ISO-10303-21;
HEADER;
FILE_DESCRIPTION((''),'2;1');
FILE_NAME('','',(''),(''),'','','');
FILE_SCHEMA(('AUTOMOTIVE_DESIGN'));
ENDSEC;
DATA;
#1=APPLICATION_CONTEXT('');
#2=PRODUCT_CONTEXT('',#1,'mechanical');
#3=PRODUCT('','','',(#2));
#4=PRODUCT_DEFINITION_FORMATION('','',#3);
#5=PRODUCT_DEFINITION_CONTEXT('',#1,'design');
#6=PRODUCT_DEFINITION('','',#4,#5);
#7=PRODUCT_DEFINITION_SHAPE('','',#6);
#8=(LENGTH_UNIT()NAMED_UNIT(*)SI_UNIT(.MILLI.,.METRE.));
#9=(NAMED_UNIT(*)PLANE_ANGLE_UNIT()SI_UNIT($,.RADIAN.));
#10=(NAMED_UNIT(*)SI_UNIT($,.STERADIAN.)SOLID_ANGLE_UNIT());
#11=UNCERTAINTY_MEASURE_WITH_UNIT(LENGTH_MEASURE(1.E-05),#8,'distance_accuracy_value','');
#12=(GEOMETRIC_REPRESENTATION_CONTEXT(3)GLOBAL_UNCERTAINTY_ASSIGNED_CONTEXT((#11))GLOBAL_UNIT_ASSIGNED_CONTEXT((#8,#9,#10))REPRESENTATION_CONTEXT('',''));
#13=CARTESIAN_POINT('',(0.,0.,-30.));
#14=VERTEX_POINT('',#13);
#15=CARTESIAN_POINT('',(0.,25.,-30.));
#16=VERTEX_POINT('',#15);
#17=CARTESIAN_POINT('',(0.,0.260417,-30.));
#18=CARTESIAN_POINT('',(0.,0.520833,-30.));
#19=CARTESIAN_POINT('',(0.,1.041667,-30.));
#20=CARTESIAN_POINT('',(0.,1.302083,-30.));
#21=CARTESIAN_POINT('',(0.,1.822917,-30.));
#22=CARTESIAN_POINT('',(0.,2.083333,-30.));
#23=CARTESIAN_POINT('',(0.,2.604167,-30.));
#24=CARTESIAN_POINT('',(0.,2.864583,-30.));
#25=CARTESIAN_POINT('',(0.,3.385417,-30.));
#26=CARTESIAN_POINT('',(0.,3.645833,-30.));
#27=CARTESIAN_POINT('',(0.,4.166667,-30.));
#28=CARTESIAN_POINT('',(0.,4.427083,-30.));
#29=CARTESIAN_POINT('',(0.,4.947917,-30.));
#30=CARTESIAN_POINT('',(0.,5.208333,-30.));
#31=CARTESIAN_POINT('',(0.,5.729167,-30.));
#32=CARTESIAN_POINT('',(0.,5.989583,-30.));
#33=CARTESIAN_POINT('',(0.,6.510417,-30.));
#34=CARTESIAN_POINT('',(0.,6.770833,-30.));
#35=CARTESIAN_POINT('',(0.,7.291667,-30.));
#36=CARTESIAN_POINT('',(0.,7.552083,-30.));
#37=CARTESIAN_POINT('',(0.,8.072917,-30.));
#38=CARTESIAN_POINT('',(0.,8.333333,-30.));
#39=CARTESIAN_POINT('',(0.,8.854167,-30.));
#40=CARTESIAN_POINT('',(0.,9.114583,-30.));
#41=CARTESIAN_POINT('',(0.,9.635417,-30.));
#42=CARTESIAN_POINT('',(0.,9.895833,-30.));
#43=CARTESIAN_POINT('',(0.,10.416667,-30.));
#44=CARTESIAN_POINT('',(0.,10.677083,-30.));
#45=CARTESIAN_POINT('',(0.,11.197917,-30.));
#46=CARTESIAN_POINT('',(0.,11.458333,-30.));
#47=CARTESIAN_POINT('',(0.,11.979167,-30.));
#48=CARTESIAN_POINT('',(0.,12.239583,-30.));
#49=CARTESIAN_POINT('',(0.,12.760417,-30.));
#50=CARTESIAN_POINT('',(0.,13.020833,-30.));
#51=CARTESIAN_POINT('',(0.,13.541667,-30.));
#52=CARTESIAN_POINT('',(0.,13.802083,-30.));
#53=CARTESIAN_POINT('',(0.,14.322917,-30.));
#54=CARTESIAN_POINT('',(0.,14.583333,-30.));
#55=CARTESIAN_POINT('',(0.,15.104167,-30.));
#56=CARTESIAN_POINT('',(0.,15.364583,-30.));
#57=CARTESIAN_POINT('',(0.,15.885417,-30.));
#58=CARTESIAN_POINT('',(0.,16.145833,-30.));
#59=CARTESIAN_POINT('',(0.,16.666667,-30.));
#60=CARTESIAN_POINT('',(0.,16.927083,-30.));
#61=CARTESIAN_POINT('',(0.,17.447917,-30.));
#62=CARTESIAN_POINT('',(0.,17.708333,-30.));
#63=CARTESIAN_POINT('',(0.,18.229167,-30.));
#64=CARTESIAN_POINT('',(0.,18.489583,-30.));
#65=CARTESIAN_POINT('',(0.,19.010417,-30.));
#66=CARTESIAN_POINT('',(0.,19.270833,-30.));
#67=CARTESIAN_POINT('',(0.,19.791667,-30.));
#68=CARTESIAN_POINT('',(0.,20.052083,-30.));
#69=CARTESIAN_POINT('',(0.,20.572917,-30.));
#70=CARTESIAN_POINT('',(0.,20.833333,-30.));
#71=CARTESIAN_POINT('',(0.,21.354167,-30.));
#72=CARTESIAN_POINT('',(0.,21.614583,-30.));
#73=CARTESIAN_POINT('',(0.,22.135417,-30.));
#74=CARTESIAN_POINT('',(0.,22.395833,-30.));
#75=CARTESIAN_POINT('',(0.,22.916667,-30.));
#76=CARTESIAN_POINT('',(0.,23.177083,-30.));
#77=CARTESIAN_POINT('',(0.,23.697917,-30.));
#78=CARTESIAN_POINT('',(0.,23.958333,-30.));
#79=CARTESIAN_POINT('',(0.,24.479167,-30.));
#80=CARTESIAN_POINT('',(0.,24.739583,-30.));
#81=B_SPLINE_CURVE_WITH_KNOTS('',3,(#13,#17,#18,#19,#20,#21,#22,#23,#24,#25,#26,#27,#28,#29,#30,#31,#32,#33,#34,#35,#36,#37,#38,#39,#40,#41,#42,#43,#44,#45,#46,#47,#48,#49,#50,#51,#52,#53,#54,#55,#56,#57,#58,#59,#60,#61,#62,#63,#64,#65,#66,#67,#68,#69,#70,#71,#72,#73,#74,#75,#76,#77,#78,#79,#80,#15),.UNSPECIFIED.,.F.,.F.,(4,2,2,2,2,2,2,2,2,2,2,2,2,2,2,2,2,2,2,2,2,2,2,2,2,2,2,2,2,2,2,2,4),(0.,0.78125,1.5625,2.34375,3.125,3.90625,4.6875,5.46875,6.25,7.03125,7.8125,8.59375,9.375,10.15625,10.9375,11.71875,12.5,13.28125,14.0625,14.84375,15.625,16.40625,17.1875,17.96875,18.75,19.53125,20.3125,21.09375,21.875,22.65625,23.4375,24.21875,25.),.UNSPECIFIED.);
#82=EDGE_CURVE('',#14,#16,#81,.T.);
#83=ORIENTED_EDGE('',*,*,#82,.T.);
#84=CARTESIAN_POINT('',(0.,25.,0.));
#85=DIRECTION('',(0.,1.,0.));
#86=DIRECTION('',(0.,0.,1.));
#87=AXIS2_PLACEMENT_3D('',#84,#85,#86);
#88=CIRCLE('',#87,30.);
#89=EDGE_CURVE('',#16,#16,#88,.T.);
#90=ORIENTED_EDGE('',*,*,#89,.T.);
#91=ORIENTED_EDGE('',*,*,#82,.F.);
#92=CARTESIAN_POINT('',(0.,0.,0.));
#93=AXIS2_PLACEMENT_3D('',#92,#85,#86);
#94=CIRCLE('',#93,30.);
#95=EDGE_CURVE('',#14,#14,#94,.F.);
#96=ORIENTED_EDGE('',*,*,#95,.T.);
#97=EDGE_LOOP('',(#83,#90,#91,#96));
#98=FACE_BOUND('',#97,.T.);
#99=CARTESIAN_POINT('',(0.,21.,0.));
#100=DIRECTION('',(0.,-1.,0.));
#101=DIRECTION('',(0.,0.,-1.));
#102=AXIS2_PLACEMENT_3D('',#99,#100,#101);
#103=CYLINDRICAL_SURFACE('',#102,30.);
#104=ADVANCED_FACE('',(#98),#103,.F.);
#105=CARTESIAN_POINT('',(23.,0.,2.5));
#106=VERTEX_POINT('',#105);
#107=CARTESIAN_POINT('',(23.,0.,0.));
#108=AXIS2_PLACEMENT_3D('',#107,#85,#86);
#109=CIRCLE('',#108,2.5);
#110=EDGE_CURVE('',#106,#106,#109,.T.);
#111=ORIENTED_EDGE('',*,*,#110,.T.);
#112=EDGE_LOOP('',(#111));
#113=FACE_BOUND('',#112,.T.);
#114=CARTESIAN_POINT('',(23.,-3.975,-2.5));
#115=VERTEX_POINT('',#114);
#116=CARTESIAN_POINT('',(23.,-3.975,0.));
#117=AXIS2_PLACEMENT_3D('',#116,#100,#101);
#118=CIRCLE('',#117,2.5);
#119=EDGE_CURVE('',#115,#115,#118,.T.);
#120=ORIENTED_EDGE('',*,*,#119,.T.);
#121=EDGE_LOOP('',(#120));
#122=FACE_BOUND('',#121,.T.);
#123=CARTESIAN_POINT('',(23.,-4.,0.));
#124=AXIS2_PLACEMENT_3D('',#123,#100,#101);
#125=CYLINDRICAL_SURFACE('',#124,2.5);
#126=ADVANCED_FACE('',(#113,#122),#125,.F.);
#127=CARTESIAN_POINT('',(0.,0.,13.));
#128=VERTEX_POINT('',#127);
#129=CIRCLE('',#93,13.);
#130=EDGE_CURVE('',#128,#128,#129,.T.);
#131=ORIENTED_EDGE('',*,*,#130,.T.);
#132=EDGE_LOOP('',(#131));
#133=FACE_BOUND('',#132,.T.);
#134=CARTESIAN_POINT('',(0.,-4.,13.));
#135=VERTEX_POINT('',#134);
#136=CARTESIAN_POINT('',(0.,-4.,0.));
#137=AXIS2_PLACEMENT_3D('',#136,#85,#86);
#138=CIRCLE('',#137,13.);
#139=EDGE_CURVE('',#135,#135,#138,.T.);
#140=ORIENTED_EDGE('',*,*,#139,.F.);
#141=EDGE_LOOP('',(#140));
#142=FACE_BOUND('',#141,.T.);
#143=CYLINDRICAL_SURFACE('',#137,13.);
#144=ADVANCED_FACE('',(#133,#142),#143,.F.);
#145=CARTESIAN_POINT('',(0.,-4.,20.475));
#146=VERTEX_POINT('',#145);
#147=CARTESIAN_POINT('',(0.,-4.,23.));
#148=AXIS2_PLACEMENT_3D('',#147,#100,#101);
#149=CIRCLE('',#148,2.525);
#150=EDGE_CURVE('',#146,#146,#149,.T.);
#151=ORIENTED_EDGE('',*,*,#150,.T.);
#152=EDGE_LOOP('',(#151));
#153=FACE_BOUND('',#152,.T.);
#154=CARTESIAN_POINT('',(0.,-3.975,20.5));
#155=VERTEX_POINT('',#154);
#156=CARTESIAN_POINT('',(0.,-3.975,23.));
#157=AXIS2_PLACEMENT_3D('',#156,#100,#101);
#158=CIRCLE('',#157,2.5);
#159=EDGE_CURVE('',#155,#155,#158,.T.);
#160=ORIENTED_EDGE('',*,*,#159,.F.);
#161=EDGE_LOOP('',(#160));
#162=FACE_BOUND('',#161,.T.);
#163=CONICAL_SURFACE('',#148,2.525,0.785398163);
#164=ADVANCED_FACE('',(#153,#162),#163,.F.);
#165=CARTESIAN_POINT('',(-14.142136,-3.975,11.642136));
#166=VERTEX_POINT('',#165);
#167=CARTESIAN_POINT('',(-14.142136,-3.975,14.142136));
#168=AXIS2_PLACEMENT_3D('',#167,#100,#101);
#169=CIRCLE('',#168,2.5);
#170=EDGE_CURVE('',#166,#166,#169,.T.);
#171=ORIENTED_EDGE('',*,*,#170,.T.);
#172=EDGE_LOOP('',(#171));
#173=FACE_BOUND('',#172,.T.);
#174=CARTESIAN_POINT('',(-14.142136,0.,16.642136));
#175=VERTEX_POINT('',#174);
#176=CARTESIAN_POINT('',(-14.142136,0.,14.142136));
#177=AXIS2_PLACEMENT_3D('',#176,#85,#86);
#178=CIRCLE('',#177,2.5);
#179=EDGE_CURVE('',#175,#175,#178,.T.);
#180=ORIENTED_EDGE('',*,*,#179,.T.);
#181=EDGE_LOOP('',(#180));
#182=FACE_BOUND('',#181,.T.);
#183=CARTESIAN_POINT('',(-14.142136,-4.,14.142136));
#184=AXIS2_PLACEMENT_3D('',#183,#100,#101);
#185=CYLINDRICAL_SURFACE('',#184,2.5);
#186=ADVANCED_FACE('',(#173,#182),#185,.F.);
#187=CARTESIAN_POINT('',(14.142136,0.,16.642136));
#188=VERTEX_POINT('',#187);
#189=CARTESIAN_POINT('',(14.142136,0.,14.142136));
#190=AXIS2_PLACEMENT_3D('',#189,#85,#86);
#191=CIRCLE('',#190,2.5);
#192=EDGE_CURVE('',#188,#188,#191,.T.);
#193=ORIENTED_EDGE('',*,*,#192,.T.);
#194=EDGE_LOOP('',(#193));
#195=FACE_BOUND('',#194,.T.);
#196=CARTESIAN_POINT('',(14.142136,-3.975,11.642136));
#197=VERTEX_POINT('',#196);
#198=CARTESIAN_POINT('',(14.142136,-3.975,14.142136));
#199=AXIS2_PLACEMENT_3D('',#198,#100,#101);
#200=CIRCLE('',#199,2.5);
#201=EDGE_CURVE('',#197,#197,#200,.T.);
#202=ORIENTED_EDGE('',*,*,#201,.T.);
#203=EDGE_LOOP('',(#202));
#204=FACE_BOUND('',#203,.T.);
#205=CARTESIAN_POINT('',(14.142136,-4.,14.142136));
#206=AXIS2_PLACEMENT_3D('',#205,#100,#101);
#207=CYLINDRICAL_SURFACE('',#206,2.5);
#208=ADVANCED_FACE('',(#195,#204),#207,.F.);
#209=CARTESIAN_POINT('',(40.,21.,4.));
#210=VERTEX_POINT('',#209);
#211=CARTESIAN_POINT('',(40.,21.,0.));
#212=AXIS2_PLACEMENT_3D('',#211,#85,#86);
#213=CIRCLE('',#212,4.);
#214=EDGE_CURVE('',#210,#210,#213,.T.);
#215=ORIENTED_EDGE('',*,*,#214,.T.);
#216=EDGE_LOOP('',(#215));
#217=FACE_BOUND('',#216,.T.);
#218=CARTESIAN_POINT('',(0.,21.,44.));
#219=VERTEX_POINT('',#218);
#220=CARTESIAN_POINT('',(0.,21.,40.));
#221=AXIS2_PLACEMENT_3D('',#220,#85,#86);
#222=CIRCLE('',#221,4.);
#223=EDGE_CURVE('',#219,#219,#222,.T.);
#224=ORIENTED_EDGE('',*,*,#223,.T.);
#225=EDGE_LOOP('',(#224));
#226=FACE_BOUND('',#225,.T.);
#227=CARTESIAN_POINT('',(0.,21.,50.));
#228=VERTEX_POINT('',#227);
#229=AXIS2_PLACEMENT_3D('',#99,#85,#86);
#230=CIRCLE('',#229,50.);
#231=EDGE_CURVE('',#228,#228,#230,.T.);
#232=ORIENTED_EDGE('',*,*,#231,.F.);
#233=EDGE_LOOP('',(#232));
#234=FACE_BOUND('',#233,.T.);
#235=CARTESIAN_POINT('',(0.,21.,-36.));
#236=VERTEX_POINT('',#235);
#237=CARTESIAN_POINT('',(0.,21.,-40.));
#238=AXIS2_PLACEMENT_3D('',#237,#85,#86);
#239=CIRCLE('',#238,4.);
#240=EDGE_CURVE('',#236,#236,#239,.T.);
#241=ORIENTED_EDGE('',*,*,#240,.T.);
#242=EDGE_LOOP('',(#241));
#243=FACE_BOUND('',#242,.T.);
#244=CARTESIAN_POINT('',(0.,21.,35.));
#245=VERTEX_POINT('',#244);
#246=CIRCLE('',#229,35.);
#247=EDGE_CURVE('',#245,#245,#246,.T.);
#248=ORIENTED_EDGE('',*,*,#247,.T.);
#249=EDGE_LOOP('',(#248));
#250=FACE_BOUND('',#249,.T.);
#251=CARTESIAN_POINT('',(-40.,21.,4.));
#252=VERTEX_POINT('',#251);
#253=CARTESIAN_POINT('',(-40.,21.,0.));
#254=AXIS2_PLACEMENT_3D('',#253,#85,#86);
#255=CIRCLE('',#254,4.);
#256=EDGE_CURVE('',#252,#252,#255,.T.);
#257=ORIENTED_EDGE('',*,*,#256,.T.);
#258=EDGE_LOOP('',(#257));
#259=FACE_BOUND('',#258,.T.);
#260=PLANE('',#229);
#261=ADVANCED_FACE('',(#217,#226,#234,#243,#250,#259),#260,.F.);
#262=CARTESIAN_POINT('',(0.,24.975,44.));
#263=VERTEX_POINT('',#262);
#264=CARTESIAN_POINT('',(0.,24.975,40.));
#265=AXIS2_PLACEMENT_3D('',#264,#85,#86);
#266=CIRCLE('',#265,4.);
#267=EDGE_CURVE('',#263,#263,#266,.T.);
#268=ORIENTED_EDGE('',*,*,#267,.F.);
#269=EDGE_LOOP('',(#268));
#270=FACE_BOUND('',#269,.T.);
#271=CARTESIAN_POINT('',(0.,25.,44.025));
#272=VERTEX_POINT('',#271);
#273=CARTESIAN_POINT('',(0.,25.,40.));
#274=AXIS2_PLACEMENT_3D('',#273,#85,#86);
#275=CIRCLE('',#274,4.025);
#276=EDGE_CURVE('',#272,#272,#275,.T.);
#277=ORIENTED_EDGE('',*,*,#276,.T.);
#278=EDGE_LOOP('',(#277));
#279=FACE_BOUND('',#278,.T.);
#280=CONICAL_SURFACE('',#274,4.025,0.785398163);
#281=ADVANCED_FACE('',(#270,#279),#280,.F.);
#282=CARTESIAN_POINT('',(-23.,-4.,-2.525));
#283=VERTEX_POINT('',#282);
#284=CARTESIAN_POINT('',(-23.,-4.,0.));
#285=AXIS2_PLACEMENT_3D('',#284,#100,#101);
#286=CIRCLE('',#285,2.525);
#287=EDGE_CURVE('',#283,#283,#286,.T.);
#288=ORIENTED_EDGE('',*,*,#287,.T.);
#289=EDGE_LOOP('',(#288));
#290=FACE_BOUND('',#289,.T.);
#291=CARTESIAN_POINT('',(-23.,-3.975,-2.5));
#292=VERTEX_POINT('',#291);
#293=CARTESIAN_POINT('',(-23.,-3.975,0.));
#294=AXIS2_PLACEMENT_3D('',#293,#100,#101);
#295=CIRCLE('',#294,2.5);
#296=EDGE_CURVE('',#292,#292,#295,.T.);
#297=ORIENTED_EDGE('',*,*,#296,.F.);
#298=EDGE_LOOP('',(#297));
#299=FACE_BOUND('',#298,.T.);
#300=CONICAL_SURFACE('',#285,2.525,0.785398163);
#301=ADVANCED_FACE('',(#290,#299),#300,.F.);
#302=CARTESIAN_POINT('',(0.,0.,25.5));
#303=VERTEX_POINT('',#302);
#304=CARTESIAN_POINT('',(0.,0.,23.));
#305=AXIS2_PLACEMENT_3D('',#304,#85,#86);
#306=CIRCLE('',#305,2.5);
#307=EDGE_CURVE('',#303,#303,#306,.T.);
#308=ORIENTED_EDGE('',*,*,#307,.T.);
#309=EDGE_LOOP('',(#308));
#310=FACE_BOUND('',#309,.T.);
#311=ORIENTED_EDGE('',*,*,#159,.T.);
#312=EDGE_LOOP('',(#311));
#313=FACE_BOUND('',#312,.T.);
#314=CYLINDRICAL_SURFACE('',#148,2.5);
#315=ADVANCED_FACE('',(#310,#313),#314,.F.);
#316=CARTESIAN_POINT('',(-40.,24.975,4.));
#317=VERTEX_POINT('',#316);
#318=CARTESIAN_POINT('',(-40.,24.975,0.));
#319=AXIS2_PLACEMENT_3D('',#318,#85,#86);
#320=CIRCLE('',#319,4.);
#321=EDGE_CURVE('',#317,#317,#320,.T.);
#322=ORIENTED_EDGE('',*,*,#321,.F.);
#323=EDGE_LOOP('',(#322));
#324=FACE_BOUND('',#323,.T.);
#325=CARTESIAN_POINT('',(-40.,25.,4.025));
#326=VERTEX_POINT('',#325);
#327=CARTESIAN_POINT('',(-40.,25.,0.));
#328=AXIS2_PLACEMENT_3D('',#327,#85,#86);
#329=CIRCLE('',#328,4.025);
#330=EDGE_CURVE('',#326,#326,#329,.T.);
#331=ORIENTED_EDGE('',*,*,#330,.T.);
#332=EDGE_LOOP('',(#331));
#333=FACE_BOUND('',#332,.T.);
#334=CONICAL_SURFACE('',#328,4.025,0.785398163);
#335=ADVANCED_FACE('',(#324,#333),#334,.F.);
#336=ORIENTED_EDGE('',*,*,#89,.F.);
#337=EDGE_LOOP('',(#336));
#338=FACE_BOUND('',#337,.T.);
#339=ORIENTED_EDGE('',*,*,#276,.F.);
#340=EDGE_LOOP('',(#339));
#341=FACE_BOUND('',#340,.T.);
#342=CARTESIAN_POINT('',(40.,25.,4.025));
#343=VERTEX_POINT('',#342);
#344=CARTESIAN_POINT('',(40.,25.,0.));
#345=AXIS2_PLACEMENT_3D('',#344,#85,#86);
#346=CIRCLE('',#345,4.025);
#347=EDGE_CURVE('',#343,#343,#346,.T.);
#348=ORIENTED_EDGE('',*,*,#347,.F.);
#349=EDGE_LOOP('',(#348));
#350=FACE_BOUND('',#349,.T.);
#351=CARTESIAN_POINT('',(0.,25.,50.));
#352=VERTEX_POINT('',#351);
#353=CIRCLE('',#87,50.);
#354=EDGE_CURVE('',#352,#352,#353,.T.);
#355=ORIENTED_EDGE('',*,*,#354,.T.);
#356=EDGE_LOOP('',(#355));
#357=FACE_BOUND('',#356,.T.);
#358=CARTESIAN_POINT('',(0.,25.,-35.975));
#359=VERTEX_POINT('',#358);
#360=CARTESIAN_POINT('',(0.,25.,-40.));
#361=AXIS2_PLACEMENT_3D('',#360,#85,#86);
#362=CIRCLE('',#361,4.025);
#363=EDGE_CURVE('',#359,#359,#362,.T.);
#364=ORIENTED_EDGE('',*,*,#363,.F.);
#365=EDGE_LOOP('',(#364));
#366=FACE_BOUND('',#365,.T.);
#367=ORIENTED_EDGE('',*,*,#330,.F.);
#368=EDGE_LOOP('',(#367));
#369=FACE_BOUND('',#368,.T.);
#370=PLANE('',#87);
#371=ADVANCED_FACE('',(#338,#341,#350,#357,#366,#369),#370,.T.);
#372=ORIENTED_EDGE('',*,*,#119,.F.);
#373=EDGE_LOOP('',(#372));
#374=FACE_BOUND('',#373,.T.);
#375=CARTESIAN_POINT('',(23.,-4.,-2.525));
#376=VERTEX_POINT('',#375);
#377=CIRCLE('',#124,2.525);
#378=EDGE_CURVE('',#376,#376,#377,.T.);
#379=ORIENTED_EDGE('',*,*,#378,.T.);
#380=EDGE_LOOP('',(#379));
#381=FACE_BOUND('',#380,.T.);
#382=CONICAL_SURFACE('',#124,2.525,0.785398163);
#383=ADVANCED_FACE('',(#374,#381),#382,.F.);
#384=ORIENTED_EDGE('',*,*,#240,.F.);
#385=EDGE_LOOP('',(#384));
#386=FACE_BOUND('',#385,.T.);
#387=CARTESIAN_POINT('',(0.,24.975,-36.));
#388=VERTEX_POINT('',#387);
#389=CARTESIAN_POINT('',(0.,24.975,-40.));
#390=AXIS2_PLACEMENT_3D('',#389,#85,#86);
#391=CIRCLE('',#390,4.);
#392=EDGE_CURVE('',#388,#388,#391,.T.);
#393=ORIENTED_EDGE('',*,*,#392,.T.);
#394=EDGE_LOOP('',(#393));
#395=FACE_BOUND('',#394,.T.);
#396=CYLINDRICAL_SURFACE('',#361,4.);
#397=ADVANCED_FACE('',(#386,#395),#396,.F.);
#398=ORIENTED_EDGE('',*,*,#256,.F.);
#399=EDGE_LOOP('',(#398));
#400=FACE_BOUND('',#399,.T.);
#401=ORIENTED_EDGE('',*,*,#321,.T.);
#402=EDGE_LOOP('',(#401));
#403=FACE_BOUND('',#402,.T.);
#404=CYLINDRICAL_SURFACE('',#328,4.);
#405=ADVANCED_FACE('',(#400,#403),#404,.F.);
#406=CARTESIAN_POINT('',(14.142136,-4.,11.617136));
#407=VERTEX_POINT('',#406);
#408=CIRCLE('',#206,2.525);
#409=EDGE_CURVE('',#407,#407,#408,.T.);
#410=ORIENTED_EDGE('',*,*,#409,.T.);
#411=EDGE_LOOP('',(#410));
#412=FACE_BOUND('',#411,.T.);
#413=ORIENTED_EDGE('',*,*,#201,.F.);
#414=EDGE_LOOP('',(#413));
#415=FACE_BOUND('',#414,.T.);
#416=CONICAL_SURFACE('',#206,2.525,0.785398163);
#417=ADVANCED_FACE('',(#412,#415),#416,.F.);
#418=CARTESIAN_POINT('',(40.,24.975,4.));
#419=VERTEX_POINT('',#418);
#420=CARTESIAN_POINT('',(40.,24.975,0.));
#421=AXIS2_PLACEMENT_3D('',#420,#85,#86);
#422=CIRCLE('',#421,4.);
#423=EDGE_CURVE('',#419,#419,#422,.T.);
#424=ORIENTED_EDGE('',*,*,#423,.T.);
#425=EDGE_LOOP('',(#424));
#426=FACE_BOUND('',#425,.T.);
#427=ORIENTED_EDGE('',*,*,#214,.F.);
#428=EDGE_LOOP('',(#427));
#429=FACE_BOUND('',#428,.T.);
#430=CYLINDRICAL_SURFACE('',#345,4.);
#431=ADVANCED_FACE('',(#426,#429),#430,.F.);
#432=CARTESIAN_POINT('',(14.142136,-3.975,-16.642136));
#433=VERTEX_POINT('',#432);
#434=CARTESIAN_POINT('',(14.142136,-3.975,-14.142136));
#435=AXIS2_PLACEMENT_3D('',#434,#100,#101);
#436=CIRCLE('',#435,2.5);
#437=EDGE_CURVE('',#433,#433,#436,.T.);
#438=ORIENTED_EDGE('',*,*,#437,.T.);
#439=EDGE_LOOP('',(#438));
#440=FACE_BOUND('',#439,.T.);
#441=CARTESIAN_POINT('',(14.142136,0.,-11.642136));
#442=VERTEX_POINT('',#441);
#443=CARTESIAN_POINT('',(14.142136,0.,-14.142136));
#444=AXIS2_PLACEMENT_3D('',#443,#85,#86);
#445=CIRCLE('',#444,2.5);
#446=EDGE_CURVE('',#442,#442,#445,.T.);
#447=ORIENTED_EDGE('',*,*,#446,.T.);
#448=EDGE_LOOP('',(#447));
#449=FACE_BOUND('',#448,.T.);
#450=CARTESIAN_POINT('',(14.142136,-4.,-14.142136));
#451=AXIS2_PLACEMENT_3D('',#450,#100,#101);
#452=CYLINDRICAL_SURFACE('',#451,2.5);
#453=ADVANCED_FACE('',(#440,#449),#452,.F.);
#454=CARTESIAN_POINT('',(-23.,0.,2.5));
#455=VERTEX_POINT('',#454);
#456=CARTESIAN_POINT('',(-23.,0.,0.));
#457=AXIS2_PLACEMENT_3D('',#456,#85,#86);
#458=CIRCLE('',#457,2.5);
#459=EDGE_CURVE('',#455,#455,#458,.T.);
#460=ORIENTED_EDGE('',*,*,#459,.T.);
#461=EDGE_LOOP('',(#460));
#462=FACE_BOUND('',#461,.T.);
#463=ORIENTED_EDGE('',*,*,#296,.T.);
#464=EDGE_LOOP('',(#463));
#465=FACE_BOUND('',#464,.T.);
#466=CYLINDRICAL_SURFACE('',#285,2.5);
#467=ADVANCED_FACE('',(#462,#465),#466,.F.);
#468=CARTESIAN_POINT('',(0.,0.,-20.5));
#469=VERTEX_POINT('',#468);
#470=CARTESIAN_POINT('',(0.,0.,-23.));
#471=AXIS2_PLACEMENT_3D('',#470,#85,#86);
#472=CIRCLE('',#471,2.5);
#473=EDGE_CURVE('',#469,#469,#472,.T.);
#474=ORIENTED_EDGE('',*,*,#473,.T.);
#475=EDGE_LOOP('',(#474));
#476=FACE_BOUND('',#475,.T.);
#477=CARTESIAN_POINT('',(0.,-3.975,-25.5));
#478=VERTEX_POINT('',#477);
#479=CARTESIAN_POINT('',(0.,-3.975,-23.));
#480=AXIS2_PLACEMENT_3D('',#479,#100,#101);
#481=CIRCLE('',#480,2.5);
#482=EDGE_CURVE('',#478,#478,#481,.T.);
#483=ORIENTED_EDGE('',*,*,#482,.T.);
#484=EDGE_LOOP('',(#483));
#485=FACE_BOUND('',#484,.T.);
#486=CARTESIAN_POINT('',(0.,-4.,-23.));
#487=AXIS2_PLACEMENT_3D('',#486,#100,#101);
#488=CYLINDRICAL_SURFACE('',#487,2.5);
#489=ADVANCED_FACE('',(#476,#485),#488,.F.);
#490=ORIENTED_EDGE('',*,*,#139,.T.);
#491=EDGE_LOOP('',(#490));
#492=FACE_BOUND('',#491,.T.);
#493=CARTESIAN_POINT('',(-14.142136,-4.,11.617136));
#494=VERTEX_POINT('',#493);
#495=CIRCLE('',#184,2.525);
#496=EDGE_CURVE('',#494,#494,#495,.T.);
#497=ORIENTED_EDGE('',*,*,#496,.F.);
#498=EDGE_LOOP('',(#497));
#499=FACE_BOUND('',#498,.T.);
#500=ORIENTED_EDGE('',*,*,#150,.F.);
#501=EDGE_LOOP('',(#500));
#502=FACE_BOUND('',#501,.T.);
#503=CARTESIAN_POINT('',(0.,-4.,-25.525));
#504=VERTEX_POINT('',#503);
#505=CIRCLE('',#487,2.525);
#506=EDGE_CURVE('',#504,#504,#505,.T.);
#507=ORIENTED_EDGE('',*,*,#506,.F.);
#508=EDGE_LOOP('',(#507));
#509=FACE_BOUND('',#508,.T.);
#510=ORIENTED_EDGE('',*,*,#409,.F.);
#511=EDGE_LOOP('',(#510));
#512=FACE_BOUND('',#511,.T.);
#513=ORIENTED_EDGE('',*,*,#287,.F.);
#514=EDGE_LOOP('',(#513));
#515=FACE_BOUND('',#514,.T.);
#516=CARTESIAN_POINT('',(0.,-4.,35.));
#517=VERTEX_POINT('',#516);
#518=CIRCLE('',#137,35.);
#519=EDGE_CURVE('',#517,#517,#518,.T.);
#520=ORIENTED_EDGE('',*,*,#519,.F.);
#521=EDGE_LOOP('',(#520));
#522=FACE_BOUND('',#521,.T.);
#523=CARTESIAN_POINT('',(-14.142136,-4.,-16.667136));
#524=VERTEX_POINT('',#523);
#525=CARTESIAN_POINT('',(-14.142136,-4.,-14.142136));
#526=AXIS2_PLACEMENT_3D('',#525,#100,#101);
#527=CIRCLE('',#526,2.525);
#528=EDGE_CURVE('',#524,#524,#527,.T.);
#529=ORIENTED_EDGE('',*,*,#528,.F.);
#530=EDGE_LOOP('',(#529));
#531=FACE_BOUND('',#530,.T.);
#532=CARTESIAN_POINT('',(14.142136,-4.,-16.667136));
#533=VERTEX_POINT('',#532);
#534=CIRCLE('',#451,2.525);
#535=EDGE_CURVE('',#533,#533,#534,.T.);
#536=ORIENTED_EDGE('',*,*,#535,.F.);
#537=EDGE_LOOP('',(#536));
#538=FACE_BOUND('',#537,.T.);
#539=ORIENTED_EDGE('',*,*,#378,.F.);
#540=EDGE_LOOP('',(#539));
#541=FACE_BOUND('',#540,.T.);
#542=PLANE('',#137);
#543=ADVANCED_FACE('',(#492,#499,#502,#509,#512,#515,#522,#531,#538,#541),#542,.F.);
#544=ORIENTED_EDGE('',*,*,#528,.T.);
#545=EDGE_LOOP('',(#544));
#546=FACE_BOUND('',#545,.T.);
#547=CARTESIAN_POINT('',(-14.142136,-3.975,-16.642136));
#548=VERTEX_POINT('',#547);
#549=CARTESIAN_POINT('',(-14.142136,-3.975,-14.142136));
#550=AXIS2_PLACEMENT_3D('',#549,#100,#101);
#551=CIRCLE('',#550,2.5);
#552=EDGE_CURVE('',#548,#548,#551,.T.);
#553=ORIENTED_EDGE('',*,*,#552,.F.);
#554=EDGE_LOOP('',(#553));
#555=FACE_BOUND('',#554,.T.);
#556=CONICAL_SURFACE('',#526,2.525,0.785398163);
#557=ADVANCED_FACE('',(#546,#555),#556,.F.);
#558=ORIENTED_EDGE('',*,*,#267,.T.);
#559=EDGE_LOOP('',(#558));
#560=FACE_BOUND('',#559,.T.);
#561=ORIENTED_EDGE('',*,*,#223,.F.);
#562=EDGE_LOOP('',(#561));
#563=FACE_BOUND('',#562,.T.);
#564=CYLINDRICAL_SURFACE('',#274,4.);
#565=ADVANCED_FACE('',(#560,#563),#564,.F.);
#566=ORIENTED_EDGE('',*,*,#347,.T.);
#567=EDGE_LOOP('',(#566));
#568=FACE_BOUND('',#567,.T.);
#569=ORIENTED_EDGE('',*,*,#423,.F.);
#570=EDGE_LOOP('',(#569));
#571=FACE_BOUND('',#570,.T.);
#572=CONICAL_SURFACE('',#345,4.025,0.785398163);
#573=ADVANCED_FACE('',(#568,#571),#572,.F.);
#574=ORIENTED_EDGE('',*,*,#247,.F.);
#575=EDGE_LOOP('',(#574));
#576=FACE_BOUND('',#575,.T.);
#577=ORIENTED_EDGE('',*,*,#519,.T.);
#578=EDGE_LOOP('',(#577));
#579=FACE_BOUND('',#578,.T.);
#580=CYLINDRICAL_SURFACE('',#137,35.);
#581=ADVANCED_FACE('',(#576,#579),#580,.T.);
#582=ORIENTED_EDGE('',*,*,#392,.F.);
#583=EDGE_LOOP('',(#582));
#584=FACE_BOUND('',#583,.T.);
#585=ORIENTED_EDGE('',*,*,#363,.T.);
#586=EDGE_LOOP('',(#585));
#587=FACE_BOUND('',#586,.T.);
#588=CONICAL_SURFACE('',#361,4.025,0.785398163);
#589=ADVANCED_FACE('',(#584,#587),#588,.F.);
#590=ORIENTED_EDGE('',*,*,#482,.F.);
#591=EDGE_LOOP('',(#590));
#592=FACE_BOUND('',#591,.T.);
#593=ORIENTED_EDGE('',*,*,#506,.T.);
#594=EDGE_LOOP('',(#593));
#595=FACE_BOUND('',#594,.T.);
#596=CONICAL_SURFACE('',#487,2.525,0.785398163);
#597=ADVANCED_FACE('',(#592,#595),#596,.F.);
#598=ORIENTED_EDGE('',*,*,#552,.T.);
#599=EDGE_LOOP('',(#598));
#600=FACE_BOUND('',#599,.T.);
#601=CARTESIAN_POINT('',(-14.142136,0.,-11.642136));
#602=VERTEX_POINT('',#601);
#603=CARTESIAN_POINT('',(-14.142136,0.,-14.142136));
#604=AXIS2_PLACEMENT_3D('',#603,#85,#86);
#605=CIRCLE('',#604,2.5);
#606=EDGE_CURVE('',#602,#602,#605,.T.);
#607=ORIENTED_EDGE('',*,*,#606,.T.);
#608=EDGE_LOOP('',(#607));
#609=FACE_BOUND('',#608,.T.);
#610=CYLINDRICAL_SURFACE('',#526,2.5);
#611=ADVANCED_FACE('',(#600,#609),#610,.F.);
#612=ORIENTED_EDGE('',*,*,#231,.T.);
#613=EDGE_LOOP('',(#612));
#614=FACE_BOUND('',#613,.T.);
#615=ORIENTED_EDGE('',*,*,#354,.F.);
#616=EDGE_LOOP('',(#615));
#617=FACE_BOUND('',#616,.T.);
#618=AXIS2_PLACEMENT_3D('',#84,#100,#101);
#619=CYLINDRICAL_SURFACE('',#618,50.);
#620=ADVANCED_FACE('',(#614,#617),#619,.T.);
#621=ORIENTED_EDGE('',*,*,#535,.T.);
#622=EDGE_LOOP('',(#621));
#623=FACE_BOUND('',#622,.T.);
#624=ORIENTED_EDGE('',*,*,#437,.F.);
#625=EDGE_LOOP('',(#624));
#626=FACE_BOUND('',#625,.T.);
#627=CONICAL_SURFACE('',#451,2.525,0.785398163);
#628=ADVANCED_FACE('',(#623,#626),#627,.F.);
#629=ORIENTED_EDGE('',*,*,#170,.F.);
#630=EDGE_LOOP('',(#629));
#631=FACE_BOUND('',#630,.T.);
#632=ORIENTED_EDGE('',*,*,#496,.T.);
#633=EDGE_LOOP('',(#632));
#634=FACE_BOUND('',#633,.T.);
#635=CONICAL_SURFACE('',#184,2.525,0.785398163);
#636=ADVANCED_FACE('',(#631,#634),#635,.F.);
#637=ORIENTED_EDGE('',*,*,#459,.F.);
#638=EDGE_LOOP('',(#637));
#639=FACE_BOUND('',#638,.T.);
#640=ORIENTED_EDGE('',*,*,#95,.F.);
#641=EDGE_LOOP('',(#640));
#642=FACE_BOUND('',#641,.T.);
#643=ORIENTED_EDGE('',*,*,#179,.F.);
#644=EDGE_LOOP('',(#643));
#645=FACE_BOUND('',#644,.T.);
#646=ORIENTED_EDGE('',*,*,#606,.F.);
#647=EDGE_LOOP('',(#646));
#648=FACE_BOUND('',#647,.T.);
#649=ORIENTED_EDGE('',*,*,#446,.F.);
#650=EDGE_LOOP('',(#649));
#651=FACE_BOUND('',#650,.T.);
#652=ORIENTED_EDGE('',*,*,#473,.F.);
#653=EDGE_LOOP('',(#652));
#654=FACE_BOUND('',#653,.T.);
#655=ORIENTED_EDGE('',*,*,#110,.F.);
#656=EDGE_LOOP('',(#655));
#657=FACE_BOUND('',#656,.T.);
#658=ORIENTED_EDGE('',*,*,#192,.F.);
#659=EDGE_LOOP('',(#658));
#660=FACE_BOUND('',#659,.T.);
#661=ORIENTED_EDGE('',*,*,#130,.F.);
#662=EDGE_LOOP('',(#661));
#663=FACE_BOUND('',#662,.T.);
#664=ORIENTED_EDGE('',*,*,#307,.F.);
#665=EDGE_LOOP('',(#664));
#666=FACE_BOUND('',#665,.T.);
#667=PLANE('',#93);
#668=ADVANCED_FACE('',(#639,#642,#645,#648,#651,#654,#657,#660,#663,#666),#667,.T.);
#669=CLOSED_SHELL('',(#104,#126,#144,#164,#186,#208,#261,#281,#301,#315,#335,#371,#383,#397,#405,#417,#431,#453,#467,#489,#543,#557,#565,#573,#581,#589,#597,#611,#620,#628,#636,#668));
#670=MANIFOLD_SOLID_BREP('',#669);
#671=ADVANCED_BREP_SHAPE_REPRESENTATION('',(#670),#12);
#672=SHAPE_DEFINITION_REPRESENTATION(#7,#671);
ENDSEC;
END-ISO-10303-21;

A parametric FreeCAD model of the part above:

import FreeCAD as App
import Part
import Sketcher
from FreeCAD import Vector
Q = App.Units.Quantity

doc = App.newDocument("Part")
body = doc.addObject("PartDesign::Body", "Body")

sketch1 = body.newObject("Sketcher::SketchObject", "Sketch")
sketch1.AttachmentSupport = (doc.getObject("XZ_Plane"), [""])
sketch1.MapMode = "FlatFace"
sketch1.addGeometry(Part.Circle(Vector(0, 0, 0), Vector(0, 0, 1), 35), False)
sketch1.addGeometry(Part.Circle(Vector(0, 0, 0), Vector(0, 0, 1), 13), False)
sketch1.addConstraint(Sketcher.Constraint("Coincident", 0, 3, -1, 1))
sketch1.addConstraint(Sketcher.Constraint("Coincident", 1, 3, -1, 1))
sketch1.addConstraint(Sketcher.Constraint("Diameter", 0, Q("70 mm")))
sketch1.addConstraint(Sketcher.Constraint("Diameter", 1, Q("26 mm")))
pad1 = body.newObject("PartDesign::Pad", "Pad")
pad1.Profile = sketch1
pad1.Length = 4

sketch2 = body.newObject("Sketcher::SketchObject", "Sketch001")
sketch2.AttachmentSupport = (doc.getObject("YZ_Plane"), [""])
sketch2.MapMode = "FlatFace"
sketch2.addGeometry(Part.LineSegment(Vector(17.502, 23, 0), Vector(-4, 23, 0)), False)
sketch2.addGeometry(Part.LineSegment(Vector(-4, 23, 0), Vector(-4, 20.475, 0)), False)
sketch2.addGeometry(Part.LineSegment(Vector(-4, 20.475, 0), Vector(-3.975, 20.5, 0)), False)
sketch2.addGeometry(Part.LineSegment(Vector(-3.975, 20.5, 0), Vector(16, 20.5, 0)), False)
sketch2.addGeometry(Part.LineSegment(Vector(16, 20.5, 0), Vector(17.502, 23, 0)), False)
sketch2.addGeometry(Part.LineSegment(Vector(-4, 23, 0), Vector(17.502, 23, 0)), True)
sketch2.addConstraint(Sketcher.Constraint("Coincident", 0, 2, 1, 1))
sketch2.addConstraint(Sketcher.Constraint("Coincident", 1, 2, 2, 1))
sketch2.addConstraint(Sketcher.Constraint("Coincident", 2, 2, 3, 1))
sketch2.addConstraint(Sketcher.Constraint("Coincident", 3, 2, 4, 1))
sketch2.addConstraint(Sketcher.Constraint("Coincident", 4, 2, 0, 1))
sketch2.addConstraint(Sketcher.Constraint("Horizontal", 0))
sketch2.addConstraint(Sketcher.Constraint("Vertical", 1))
sketch2.addConstraint(Sketcher.Constraint("Horizontal", 3))
sketch2.addConstraint(Sketcher.Constraint("Horizontal", 5))
sketch2.addConstraint(Sketcher.Constraint("Coincident", 5, 1, 0, 2))
sketch2.addConstraint(Sketcher.Constraint("Equal", 0, 5))
sketch2.addConstraint(Sketcher.Constraint("Angle", 2, Q("45 deg")))
sketch2.addConstraint(Sketcher.Constraint("Angle", 4, Q("59 deg")))
sketch2.addConstraint(Sketcher.Constraint("DistanceX", 0, 2, -1, 1, Q("4 mm")))
sketch2.addConstraint(Sketcher.Constraint("DistanceY", -1, 1, 0, 2, Q("23 mm")))
sketch2.addConstraint(Sketcher.Constraint("DistanceX", -1, 1, 3, 2, Q("16 mm")))
sketch2.addConstraint(Sketcher.Constraint("DistanceY", -1, 1, 2, 2, Q("20.5 mm")))
sketch2.addConstraint(Sketcher.Constraint("DistanceX", 3, 1, 3, 2, Q("19.975 mm")))
groove = body.newObject("PartDesign::Groove", "Groove")
groove.Profile = sketch2
groove.ReferenceAxis = (sketch2, ["Axis0"])
groove.Angle = 360
doc.recompute()

datumline = body.newObject("PartDesign::Line", "DatumLine")
datumline.Placement = App.Placement(Vector(0, 0, 0), App.Rotation(Vector(0, 0, 1), Vector(-0.707106781, 0, -0.707106781)))
linearpattern = body.newObject("PartDesign::LinearPattern", "LinearPattern")
linearpattern.Originals = [groove]
linearpattern.Direction = (datumline, [""])
linearpattern.Mode = "offset"
linearpattern.Offset = 32.526912
linearpattern.Occurrences = 2
body.Tip = linearpattern
doc.recompute()

mirrored = body.newObject("PartDesign::Mirrored", "Mirrored")
mirrored.Originals = [groove]
mirrored.MirrorPlane = (doc.getObject("YZ_Plane"), [""])
body.Tip = mirrored

sketch3 = body.newObject("Sketcher::SketchObject", "Sketch002")
sketch3.AttachmentSupport = (doc.getObject("YZ_Plane"), [""])
sketch3.MapMode = "FlatFace"
sketch3.AttachmentOffset = App.Placement(Vector(0, 0, 23), App.Rotation())
sketch3.addGeometry(Part.LineSegment(Vector(-4, 0, 0), Vector(17.502, 0, 0)), False)
sketch3.addGeometry(Part.LineSegment(Vector(17.502, 0, 0), Vector(16, -2.5, 0)), False)
sketch3.addGeometry(Part.LineSegment(Vector(16, -2.5, 0), Vector(-3.975, -2.5, 0)), False)
sketch3.addGeometry(Part.LineSegment(Vector(-3.975, -2.5, 0), Vector(-4, -2.525, 0)), False)
sketch3.addGeometry(Part.LineSegment(Vector(-4, -2.525, 0), Vector(-4, 0, 0)), False)
sketch3.addConstraint(Sketcher.Constraint("Coincident", 0, 2, 1, 1))
sketch3.addConstraint(Sketcher.Constraint("Coincident", 1, 2, 2, 1))
sketch3.addConstraint(Sketcher.Constraint("Coincident", 2, 2, 3, 1))
sketch3.addConstraint(Sketcher.Constraint("Coincident", 3, 2, 4, 1))
sketch3.addConstraint(Sketcher.Constraint("Coincident", 4, 2, 0, 1))
sketch3.addConstraint(Sketcher.Constraint("Horizontal", 0))
sketch3.addConstraint(Sketcher.Constraint("Horizontal", 2))
sketch3.addConstraint(Sketcher.Constraint("Vertical", 4))
sketch3.addConstraint(Sketcher.Constraint("PointOnObject", 0, 2, -1))
sketch3.addConstraint(Sketcher.Constraint("Angle", 1, Q("-121 deg")))
sketch3.addConstraint(Sketcher.Constraint("Angle", 3, Q("-135 deg")))
sketch3.addConstraint(Sketcher.Constraint("DistanceX", -1, 1, 1, 2, Q("16 mm")))
sketch3.addConstraint(Sketcher.Constraint("DistanceX", 3, 2, -1, 1, Q("4 mm")))
sketch3.addConstraint(Sketcher.Constraint("DistanceY", 1, 2, -1, 1, Q("2.5 mm")))
sketch3.addConstraint(Sketcher.Constraint("DistanceX", 2, 2, 2, 1, Q("19.975 mm")))
groove2 = body.newObject("PartDesign::Groove", "Groove001")
groove2.Profile = sketch3
groove2.ReferenceAxis = (sketch3, ["H_Axis"])
groove2.Angle = 360
doc.recompute()

mirrored2 = body.newObject("PartDesign::Mirrored", "Mirrored001")
mirrored2.Originals = [groove]
mirrored2.MirrorPlane = (doc.getObject("XY_Plane"), [""])
body.Tip = mirrored2

sketch4 = body.newObject("Sketcher::SketchObject", "Sketch003")
sketch4.AttachmentSupport = (doc.getObject("YZ_Plane"), [""])
sketch4.MapMode = "FlatFace"
sketch4.AttachmentOffset = App.Placement(Vector(0, 0, -23), App.Rotation())
sketch4.addGeometry(Part.LineSegment(Vector(-4, 0, 0), Vector(17.502, 0, 0)), False)
sketch4.addGeometry(Part.LineSegment(Vector(17.502, 0, 0), Vector(16, 2.5, 0)), False)
sketch4.addGeometry(Part.LineSegment(Vector(16, 2.5, 0), Vector(-3.975, 2.5, 0)), False)
sketch4.addGeometry(Part.LineSegment(Vector(-3.975, 2.5, 0), Vector(-4, 2.525, 0)), False)
sketch4.addGeometry(Part.LineSegment(Vector(-4, 2.525, 0), Vector(-4, 0, 0)), False)
sketch4.addConstraint(Sketcher.Constraint("Coincident", 0, 2, 1, 1))
sketch4.addConstraint(Sketcher.Constraint("Coincident", 1, 2, 2, 1))
sketch4.addConstraint(Sketcher.Constraint("Coincident", 2, 2, 3, 1))
sketch4.addConstraint(Sketcher.Constraint("Coincident", 3, 2, 4, 1))
sketch4.addConstraint(Sketcher.Constraint("Coincident", 4, 2, 0, 1))
sketch4.addConstraint(Sketcher.Constraint("Horizontal", 0))
sketch4.addConstraint(Sketcher.Constraint("Horizontal", 2))
sketch4.addConstraint(Sketcher.Constraint("Vertical", 4))
sketch4.addConstraint(Sketcher.Constraint("PointOnObject", 0, 2, -1))
sketch4.addConstraint(Sketcher.Constraint("Angle", 1, Q("121 deg")))
sketch4.addConstraint(Sketcher.Constraint("Angle", 3, Q("135 deg")))
sketch4.addConstraint(Sketcher.Constraint("DistanceX", -1, 1, 1, 2, Q("16 mm")))
sketch4.addConstraint(Sketcher.Constraint("DistanceX", 3, 2, -1, 1, Q("4 mm")))
sketch4.addConstraint(Sketcher.Constraint("DistanceY", -1, 1, 1, 2, Q("2.5 mm")))
sketch4.addConstraint(Sketcher.Constraint("DistanceX", 2, 2, 2, 1, Q("19.975 mm")))
groove3 = body.newObject("PartDesign::Groove", "Groove002")
groove3.Profile = sketch4
groove3.ReferenceAxis = (sketch4, ["H_Axis"])
groove3.Angle = 360

sketch5 = body.newObject("Sketcher::SketchObject", "Sketch004")
sketch5.AttachmentSupport = (doc.getObject("YZ_Plane"), [""])
sketch5.MapMode = "FlatFace"
sketch5.AttachmentOffset = App.Placement(Vector(0, 0, -14.142136), App.Rotation())
sketch5.addGeometry(Part.LineSegment(Vector(17.502, 14.142, 0), Vector(-4, 14.142, 0)), False)
sketch5.addGeometry(Part.LineSegment(Vector(-4, 14.142, 0), Vector(-4, 11.617, 0)), False)
sketch5.addGeometry(Part.LineSegment(Vector(-4, 11.617, 0), Vector(-3.975, 11.642, 0)), False)
sketch5.addGeometry(Part.LineSegment(Vector(-3.975, 11.642, 0), Vector(16, 11.642, 0)), False)
sketch5.addGeometry(Part.LineSegment(Vector(16, 11.642, 0), Vector(17.502, 14.142, 0)), False)
sketch5.addGeometry(Part.LineSegment(Vector(-4, 14.142, 0), Vector(17.502, 14.142, 0)), True)
sketch5.addConstraint(Sketcher.Constraint("Coincident", 0, 2, 1, 1))
sketch5.addConstraint(Sketcher.Constraint("Coincident", 1, 2, 2, 1))
sketch5.addConstraint(Sketcher.Constraint("Coincident", 2, 2, 3, 1))
sketch5.addConstraint(Sketcher.Constraint("Coincident", 3, 2, 4, 1))
sketch5.addConstraint(Sketcher.Constraint("Coincident", 4, 2, 0, 1))
sketch5.addConstraint(Sketcher.Constraint("Horizontal", 0))
sketch5.addConstraint(Sketcher.Constraint("Vertical", 1))
sketch5.addConstraint(Sketcher.Constraint("Horizontal", 3))
sketch5.addConstraint(Sketcher.Constraint("Horizontal", 5))
sketch5.addConstraint(Sketcher.Constraint("Coincident", 5, 1, 0, 2))
sketch5.addConstraint(Sketcher.Constraint("Equal", 0, 5))
sketch5.addConstraint(Sketcher.Constraint("Angle", 2, Q("45 deg")))
sketch5.addConstraint(Sketcher.Constraint("Angle", 4, Q("59 deg")))
sketch5.addConstraint(Sketcher.Constraint("DistanceX", 0, 2, -1, 1, Q("4 mm")))
sketch5.addConstraint(Sketcher.Constraint("DistanceX", -1, 1, 3, 2, Q("16 mm")))
sketch5.addConstraint(Sketcher.Constraint("DistanceY", 2, 2, 0, 2, Q("2.5 mm")))
sketch5.addConstraint(Sketcher.Constraint("DistanceX", 3, 1, 3, 2, Q("19.975 mm")))
sketch5.addConstraint(Sketcher.Constraint("DistanceY", -1, 1, 0, 2, Q("14.142136 mm")))
groove4 = body.newObject("PartDesign::Groove", "Groove003")
groove4.Profile = sketch5
groove4.ReferenceAxis = (sketch5, ["Axis0"])
groove4.Angle = 360
doc.recompute()

linearpattern2 = body.newObject("PartDesign::LinearPattern", "LinearPattern001")
linearpattern2.Originals = [groove4]
linearpattern2.Direction = (doc.getObject("X_Axis"), [""])
linearpattern2.Mode = "offset"
linearpattern2.Offset = 28.284271
linearpattern2.Occurrences = 2
body.Tip = linearpattern2
doc.recompute()

mirrored3 = body.newObject("PartDesign::Mirrored", "Mirrored002")
mirrored3.Originals = [groove4]
mirrored3.MirrorPlane = (doc.getObject("XY_Plane"), [""])
body.Tip = mirrored3

sketch6 = body.newObject("Sketcher::SketchObject", "Sketch005")
sketch6.AttachmentSupport = (doc.getObject("YZ_Plane"), [""])
sketch6.MapMode = "FlatFace"
sketch6.AttachmentOffset = App.Placement(Vector(0, 0, 14.142136), App.Rotation())
sketch6.addGeometry(Part.LineSegment(Vector(-4, -14.142, 0), Vector(17.502, -14.142, 0)), False)
sketch6.addGeometry(Part.LineSegment(Vector(17.502, -14.142, 0), Vector(16, -11.642, 0)), False)
sketch6.addGeometry(Part.LineSegment(Vector(16, -11.642, 0), Vector(-3.975, -11.642, 0)), False)
sketch6.addGeometry(Part.LineSegment(Vector(-3.975, -11.642, 0), Vector(-4, -11.617, 0)), False)
sketch6.addGeometry(Part.LineSegment(Vector(-4, -11.617, 0), Vector(-4, -14.142, 0)), False)
sketch6.addGeometry(Part.LineSegment(Vector(17.502, -14.142, 0), Vector(-4, -14.142, 0)), True)
sketch6.addConstraint(Sketcher.Constraint("Coincident", 0, 2, 1, 1))
sketch6.addConstraint(Sketcher.Constraint("Coincident", 1, 2, 2, 1))
sketch6.addConstraint(Sketcher.Constraint("Coincident", 2, 2, 3, 1))
sketch6.addConstraint(Sketcher.Constraint("Coincident", 3, 2, 4, 1))
sketch6.addConstraint(Sketcher.Constraint("Coincident", 4, 2, 0, 1))
sketch6.addConstraint(Sketcher.Constraint("Horizontal", 0))
sketch6.addConstraint(Sketcher.Constraint("Horizontal", 2))
sketch6.addConstraint(Sketcher.Constraint("Vertical", 4))
sketch6.addConstraint(Sketcher.Constraint("Horizontal", 5))
sketch6.addConstraint(Sketcher.Constraint("Coincident", 5, 1, 0, 2))
sketch6.addConstraint(Sketcher.Constraint("Vertical", 3, 2, 5, 2))
sketch6.addConstraint(Sketcher.Constraint("Angle", 1, Q("121 deg")))
sketch6.addConstraint(Sketcher.Constraint("Angle", 3, Q("135 deg")))
sketch6.addConstraint(Sketcher.Constraint("DistanceX", -1, 1, 1, 2, Q("16 mm")))
sketch6.addConstraint(Sketcher.Constraint("DistanceX", 3, 2, -1, 1, Q("4 mm")))
sketch6.addConstraint(Sketcher.Constraint("DistanceY", 0, 2, 1, 2, Q("2.5 mm")))
sketch6.addConstraint(Sketcher.Constraint("DistanceX", 2, 2, 2, 1, Q("19.975 mm")))
sketch6.addConstraint(Sketcher.Constraint("DistanceY", 0, 2, -1, 1, Q("14.142136 mm")))
groove5 = body.newObject("PartDesign::Groove", "Groove004")
groove5.Profile = sketch6
groove5.ReferenceAxis = (sketch6, ["Axis0"])
groove5.Angle = 360

sketch7 = body.newObject("Sketcher::SketchObject", "Sketch006")
sketch7.AttachmentSupport = (doc.getObject("XZ_Plane"), [""])
sketch7.MapMode = "FlatFace"
sketch7.AttachmentOffset = App.Placement(Vector(0, 0, -21), App.Rotation())
sketch7.addGeometry(Part.Circle(Vector(0, 0, 0), Vector(0, 0, 1), 35), False)
sketch7.addGeometry(Part.Circle(Vector(0, 0, 0), Vector(0, 0, 1), 30), False)
sketch7.addConstraint(Sketcher.Constraint("Coincident", 0, 3, -1, 1))
sketch7.addConstraint(Sketcher.Constraint("Coincident", 1, 3, -1, 1))
sketch7.addConstraint(Sketcher.Constraint("Diameter", 0, Q("70 mm")))
sketch7.addConstraint(Sketcher.Constraint("Diameter", 1, Q("60 mm")))
pad2 = body.newObject("PartDesign::Pad", "Pad001")
pad2.Profile = sketch7
pad2.Length = 21

sketch8 = body.newObject("Sketcher::SketchObject", "Sketch007")
sketch8.AttachmentSupport = (doc.getObject("XZ_Plane"), [""])
sketch8.MapMode = "FlatFace"
sketch8.AttachmentOffset = App.Placement(Vector(0, 0, -25), App.Rotation())
sketch8.addGeometry(Part.Circle(Vector(0, 0, 0), Vector(0, 0, 1), 50), False)
sketch8.addGeometry(Part.Circle(Vector(0, 0, 0), Vector(0, 0, 1), 30), False)
sketch8.addConstraint(Sketcher.Constraint("Coincident", 0, 3, -1, 1))
sketch8.addConstraint(Sketcher.Constraint("Coincident", 1, 3, -1, 1))
sketch8.addConstraint(Sketcher.Constraint("Diameter", 0, Q("100 mm")))
sketch8.addConstraint(Sketcher.Constraint("Diameter", 1, Q("60 mm")))
pad3 = body.newObject("PartDesign::Pad", "Pad002")
pad3.Profile = sketch8
pad3.Length = 4

sketch9 = body.newObject("Sketcher::SketchObject", "Sketch008")
sketch9.AttachmentSupport = (doc.getObject("YZ_Plane"), [""])
sketch9.MapMode = "FlatFace"
sketch9.addGeometry(Part.LineSegment(Vector(2.597, -40, 0), Vector(25, -40, 0)), False)
sketch9.addGeometry(Part.LineSegment(Vector(25, -40, 0), Vector(25, -35.975, 0)), False)
sketch9.addGeometry(Part.LineSegment(Vector(25, -35.975, 0), Vector(24.975, -36, 0)), False)
sketch9.addGeometry(Part.LineSegment(Vector(24.975, -36, 0), Vector(5, -36, 0)), False)
sketch9.addGeometry(Part.LineSegment(Vector(5, -36, 0), Vector(2.597, -40, 0)), False)
sketch9.addGeometry(Part.LineSegment(Vector(25, -40, 0), Vector(2.597, -40, 0)), True)
sketch9.addConstraint(Sketcher.Constraint("Coincident", 0, 2, 1, 1))
sketch9.addConstraint(Sketcher.Constraint("Coincident", 1, 2, 2, 1))
sketch9.addConstraint(Sketcher.Constraint("Coincident", 2, 2, 3, 1))
sketch9.addConstraint(Sketcher.Constraint("Coincident", 3, 2, 4, 1))
sketch9.addConstraint(Sketcher.Constraint("Coincident", 4, 2, 0, 1))
sketch9.addConstraint(Sketcher.Constraint("Horizontal", 0))
sketch9.addConstraint(Sketcher.Constraint("Vertical", 1))
sketch9.addConstraint(Sketcher.Constraint("Horizontal", 3))
sketch9.addConstraint(Sketcher.Constraint("Horizontal", 5))
sketch9.addConstraint(Sketcher.Constraint("Coincident", 5, 1, 0, 2))
sketch9.addConstraint(Sketcher.Constraint("Equal", 0, 5))
sketch9.addConstraint(Sketcher.Constraint("Angle", 2, Q("-135 deg")))
sketch9.addConstraint(Sketcher.Constraint("Angle", 4, Q("-121 deg")))
sketch9.addConstraint(Sketcher.Constraint("DistanceX", -1, 1, 0, 2, Q("25 mm")))
sketch9.addConstraint(Sketcher.Constraint("DistanceY", 0, 2, -1, 1, Q("40 mm")))
sketch9.addConstraint(Sketcher.Constraint("DistanceY", 2, 2, -1, 1, Q("36 mm")))
sketch9.addConstraint(Sketcher.Constraint("DistanceX", -1, 1, 3, 2, Q("5 mm")))
sketch9.addConstraint(Sketcher.Constraint("DistanceX", 3, 2, 3, 1, Q("19.975 mm")))
groove6 = body.newObject("PartDesign::Groove", "Groove005")
groove6.Profile = sketch9
groove6.ReferenceAxis = (sketch9, ["Axis0"])
groove6.Angle = 360
doc.recompute()

datumline2 = body.newObject("PartDesign::Line", "DatumLine001")
datumline2.Placement = App.Placement(Vector(0, 0, 0), App.Rotation(Vector(0, 0, 1), Vector(-0.707106781, 0, 0.707106781)))
linearpattern3 = body.newObject("PartDesign::LinearPattern", "LinearPattern002")
linearpattern3.Originals = [groove6]
linearpattern3.Direction = (datumline2, [""])
linearpattern3.Mode = "offset"
linearpattern3.Offset = 56.568542
linearpattern3.Occurrences = 2
body.Tip = linearpattern3
doc.recompute()

mirrored4 = body.newObject("PartDesign::Mirrored", "Mirrored003")
mirrored4.Originals = [groove6]
mirrored4.MirrorPlane = (doc.getObject("YZ_Plane"), [""])
body.Tip = mirrored4

sketch10 = body.newObject("Sketcher::SketchObject", "Sketch009")
sketch10.AttachmentSupport = (doc.getObject("YZ_Plane"), [""])
sketch10.MapMode = "FlatFace"
sketch10.AttachmentOffset = App.Placement(Vector(0, 0, 40), App.Rotation())
sketch10.addGeometry(Part.LineSegment(Vector(25, 0, 0), Vector(2.597, 0, 0)), False)
sketch10.addGeometry(Part.LineSegment(Vector(2.597, 0, 0), Vector(5, 4, 0)), False)
sketch10.addGeometry(Part.LineSegment(Vector(5, 4, 0), Vector(24.975, 4, 0)), False)
sketch10.addGeometry(Part.LineSegment(Vector(24.975, 4, 0), Vector(25, 4.025, 0)), False)
sketch10.addGeometry(Part.LineSegment(Vector(25, 4.025, 0), Vector(25, 0, 0)), False)
sketch10.addConstraint(Sketcher.Constraint("Coincident", 0, 2, 1, 1))
sketch10.addConstraint(Sketcher.Constraint("Coincident", 1, 2, 2, 1))
sketch10.addConstraint(Sketcher.Constraint("Coincident", 2, 2, 3, 1))
sketch10.addConstraint(Sketcher.Constraint("Coincident", 3, 2, 4, 1))
sketch10.addConstraint(Sketcher.Constraint("Coincident", 4, 2, 0, 1))
sketch10.addConstraint(Sketcher.Constraint("Horizontal", 0))
sketch10.addConstraint(Sketcher.Constraint("Horizontal", 2))
sketch10.addConstraint(Sketcher.Constraint("Vertical", 4))
sketch10.addConstraint(Sketcher.Constraint("PointOnObject", 0, 2, -1))
sketch10.addConstraint(Sketcher.Constraint("Angle", 1, Q("59 deg")))
sketch10.addConstraint(Sketcher.Constraint("Angle", 3, Q("45 deg")))
sketch10.addConstraint(Sketcher.Constraint("DistanceX", -1, 1, 1, 2, Q("5 mm")))
sketch10.addConstraint(Sketcher.Constraint("DistanceY", -1, 1, 1, 2, Q("4 mm")))
sketch10.addConstraint(Sketcher.Constraint("DistanceX", -1, 1, 3, 2, Q("25 mm")))
sketch10.addConstraint(Sketcher.Constraint("DistanceX", 2, 1, 2, 2, Q("19.975 mm")))
groove7 = body.newObject("PartDesign::Groove", "Groove006")
groove7.Profile = sketch10
groove7.ReferenceAxis = (sketch10, ["H_Axis"])
groove7.Angle = 360
doc.recompute()

mirrored5 = body.newObject("PartDesign::Mirrored", "Mirrored004")
mirrored5.Originals = [groove6]
mirrored5.MirrorPlane = (doc.getObject("XY_Plane"), [""])
body.Tip = mirrored5

sketch11 = body.newObject("Sketcher::SketchObject", "Sketch010")
sketch11.AttachmentSupport = (doc.getObject("YZ_Plane"), [""])
sketch11.MapMode = "FlatFace"
sketch11.AttachmentOffset = App.Placement(Vector(0, 0, -40), App.Rotation())
sketch11.addGeometry(Part.LineSegment(Vector(25, 0, 0), Vector(2.597, 0, 0)), False)
sketch11.addGeometry(Part.LineSegment(Vector(2.597, 0, 0), Vector(5, -4, 0)), False)
sketch11.addGeometry(Part.LineSegment(Vector(5, -4, 0), Vector(24.975, -4, 0)), False)
sketch11.addGeometry(Part.LineSegment(Vector(24.975, -4, 0), Vector(25, -4.025, 0)), False)
sketch11.addGeometry(Part.LineSegment(Vector(25, -4.025, 0), Vector(25, 0, 0)), False)
sketch11.addConstraint(Sketcher.Constraint("Coincident", 0, 2, 1, 1))
sketch11.addConstraint(Sketcher.Constraint("Coincident", 1, 2, 2, 1))
sketch11.addConstraint(Sketcher.Constraint("Coincident", 2, 2, 3, 1))
sketch11.addConstraint(Sketcher.Constraint("Coincident", 3, 2, 4, 1))
sketch11.addConstraint(Sketcher.Constraint("Coincident", 4, 2, 0, 1))
sketch11.addConstraint(Sketcher.Constraint("Horizontal", 0))
sketch11.addConstraint(Sketcher.Constraint("Horizontal", 2))
sketch11.addConstraint(Sketcher.Constraint("Vertical", 4))
sketch11.addConstraint(Sketcher.Constraint("PointOnObject", 0, 2, -1))
sketch11.addConstraint(Sketcher.Constraint("Angle", 1, Q("-59 deg")))
sketch11.addConstraint(Sketcher.Constraint("Angle", 3, Q("-45 deg")))
sketch11.addConstraint(Sketcher.Constraint("DistanceX", -1, 1, 1, 2, Q("5 mm")))
sketch11.addConstraint(Sketcher.Constraint("DistanceY", 1, 2, -1, 1, Q("4 mm")))
sketch11.addConstraint(Sketcher.Constraint("DistanceX", -1, 1, 3, 2, Q("25 mm")))
sketch11.addConstraint(Sketcher.Constraint("DistanceX", 2, 1, 2, 2, Q("19.975 mm")))
groove8 = body.newObject("PartDesign::Groove", "Groove007")
groove8.Profile = sketch11
groove8.ReferenceAxis = (sketch11, ["H_Axis"])
groove8.Angle = 360

doc.recompute()
